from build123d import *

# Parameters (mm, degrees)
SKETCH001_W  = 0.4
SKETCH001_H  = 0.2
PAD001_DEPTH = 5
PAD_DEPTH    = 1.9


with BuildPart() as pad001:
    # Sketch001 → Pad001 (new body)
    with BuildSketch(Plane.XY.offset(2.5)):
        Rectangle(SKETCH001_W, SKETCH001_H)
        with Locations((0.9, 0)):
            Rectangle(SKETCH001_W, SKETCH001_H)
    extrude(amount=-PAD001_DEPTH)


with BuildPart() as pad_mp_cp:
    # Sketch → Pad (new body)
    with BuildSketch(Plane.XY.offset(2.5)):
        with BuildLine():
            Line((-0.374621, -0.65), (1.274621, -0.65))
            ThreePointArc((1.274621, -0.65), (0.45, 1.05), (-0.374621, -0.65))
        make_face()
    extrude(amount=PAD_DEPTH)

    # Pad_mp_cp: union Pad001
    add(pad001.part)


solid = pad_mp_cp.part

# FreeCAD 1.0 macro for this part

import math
import FreeCAD as App
import Part
import Sketcher
from FreeCAD import Vector

doc = App.newDocument("Part")
body = doc.addObject("PartDesign::Body", "Body")
body.AllowCompound = True

sketch1 = body.newObject("Sketcher::SketchObject", "Sketch")
sketch1.AttachmentSupport = (doc.getObject("XY_Plane"), [""])
sketch1.MapMode = "FlatFace"
sketch1.AttachmentOffset = App.Placement(Vector(0, 0, 2.5), App.Rotation())
sketch1.addGeometry(Part.LineSegment(Vector(-0.2, 0.1, 0), Vector(-0.2, -0.1, 0)), False)
sketch1.addGeometry(Part.LineSegment(Vector(-0.2, -0.1, 0), Vector(0.2, -0.1, 0)), False)
sketch1.addGeometry(Part.LineSegment(Vector(0.2, -0.1, 0), Vector(0.2, 0.1, 0)), False)
sketch1.addGeometry(Part.LineSegment(Vector(0.2, 0.1, 0), Vector(-0.2, 0.1, 0)), False)
sketch1.addGeometry(Part.LineSegment(Vector(0.7, 0.1, 0), Vector(0.7, -0.1, 0)), False)
sketch1.addGeometry(Part.LineSegment(Vector(0.7, -0.1, 0), Vector(1.1, -0.1, 0)), False)
sketch1.addGeometry(Part.LineSegment(Vector(1.1, -0.1, 0), Vector(1.1, 0.1, 0)), False)
sketch1.addGeometry(Part.LineSegment(Vector(1.1, 0.1, 0), Vector(0.7, 0.1, 0)), False)
sketch1.addConstraint(Sketcher.Constraint("Coincident", 0, 2, 1, 1))
sketch1.addConstraint(Sketcher.Constraint("Coincident", 1, 2, 2, 1))
sketch1.addConstraint(Sketcher.Constraint("Coincident", 2, 2, 3, 1))
sketch1.addConstraint(Sketcher.Constraint("Coincident", 3, 2, 0, 1))
sketch1.addConstraint(Sketcher.Constraint("Coincident", 4, 2, 5, 1))
sketch1.addConstraint(Sketcher.Constraint("Coincident", 5, 2, 6, 1))
sketch1.addConstraint(Sketcher.Constraint("Coincident", 6, 2, 7, 1))
sketch1.addConstraint(Sketcher.Constraint("Coincident", 7, 2, 4, 1))
sketch1.addConstraint(Sketcher.Constraint("Vertical", 0))
sketch1.addConstraint(Sketcher.Constraint("Horizontal", 1))
sketch1.addConstraint(Sketcher.Constraint("Vertical", 2))
sketch1.addConstraint(Sketcher.Constraint("Horizontal", 3))
sketch1.addConstraint(Sketcher.Constraint("Vertical", 4))
sketch1.addConstraint(Sketcher.Constraint("Horizontal", 5))
sketch1.addConstraint(Sketcher.Constraint("Vertical", 6))
sketch1.addConstraint(Sketcher.Constraint("Horizontal", 7))
sketch1.addConstraint(Sketcher.Constraint("Symmetric", 0, 2, 2, 2, -1, 1))
sketch1.addConstraint(Sketcher.Constraint("Horizontal", 1, 2, 4, 2))
sketch1.addConstraint(Sketcher.Constraint("Horizontal", 3, 2, 6, 2))
sketch1.addConstraint(Sketcher.Constraint("Equal", 3, 5))
sketch1.addConstraint(Sketcher.Constraint("DistanceX", 1, 1, 1, 2, 0.4))
sketch1.addConstraint(Sketcher.Constraint("DistanceY", 0, 2, 0, 1, 0.2))
sketch1.addConstraint(Sketcher.Constraint("DistanceX", -1, 1, 4, 2, 0.7))
pad1 = body.newObject("PartDesign::Pad", "Pad")
pad1.Profile = sketch1
pad1.Length = 5
pad1.Reversed = True
body2 = doc.addObject("PartDesign::Body", "Body001")

sketch2 = body2.newObject("Sketcher::SketchObject", "Sketch001")
sketch2.AttachmentSupport = (doc.getObject("XY_Plane001"), [""])
sketch2.MapMode = "FlatFace"
sketch2.AttachmentOffset = App.Placement(Vector(0, 0, 2.5), App.Rotation())
sketch2.addGeometry(Part.LineSegment(Vector(-0.4, -0.7, 0), Vector(1.3, -0.7, 0)), False)
sketch2.addGeometry(Part.ArcOfCircle(Part.Circle(Vector(0.5, 0, 0), Vector(0, 0, 1), 1), math.radians(-38), math.radians(218)), False)
sketch2.addConstraint(Sketcher.Constraint("Coincident", 0, 1, 1, 2))
sketch2.addConstraint(Sketcher.Constraint("Coincident", 1, 1, 0, 2))
sketch2.addConstraint(Sketcher.Constraint("Horizontal", 0))
sketch2.addConstraint(Sketcher.Constraint("PointOnObject", 1, 3, -1))
sketch2.addConstraint(Sketcher.Constraint("Radius", 1, 1.05))
sketch2.addConstraint(Sketcher.Constraint("DistanceX", -1, 1, 1, 3, 0.45))
sketch2.addConstraint(Sketcher.Constraint("DistanceY", 0, 1, -1, 1, 0.65))
pad2 = body2.newObject("PartDesign::Pad", "Pad001")
pad2.Profile = sketch2
pad2.Length = 1.9
doc.recompute()

boolean = body2.newObject("PartDesign::Boolean", "Boolean")
boolean.Type = "Fuse"
boolean.addObjects([body])

doc.recompute()
